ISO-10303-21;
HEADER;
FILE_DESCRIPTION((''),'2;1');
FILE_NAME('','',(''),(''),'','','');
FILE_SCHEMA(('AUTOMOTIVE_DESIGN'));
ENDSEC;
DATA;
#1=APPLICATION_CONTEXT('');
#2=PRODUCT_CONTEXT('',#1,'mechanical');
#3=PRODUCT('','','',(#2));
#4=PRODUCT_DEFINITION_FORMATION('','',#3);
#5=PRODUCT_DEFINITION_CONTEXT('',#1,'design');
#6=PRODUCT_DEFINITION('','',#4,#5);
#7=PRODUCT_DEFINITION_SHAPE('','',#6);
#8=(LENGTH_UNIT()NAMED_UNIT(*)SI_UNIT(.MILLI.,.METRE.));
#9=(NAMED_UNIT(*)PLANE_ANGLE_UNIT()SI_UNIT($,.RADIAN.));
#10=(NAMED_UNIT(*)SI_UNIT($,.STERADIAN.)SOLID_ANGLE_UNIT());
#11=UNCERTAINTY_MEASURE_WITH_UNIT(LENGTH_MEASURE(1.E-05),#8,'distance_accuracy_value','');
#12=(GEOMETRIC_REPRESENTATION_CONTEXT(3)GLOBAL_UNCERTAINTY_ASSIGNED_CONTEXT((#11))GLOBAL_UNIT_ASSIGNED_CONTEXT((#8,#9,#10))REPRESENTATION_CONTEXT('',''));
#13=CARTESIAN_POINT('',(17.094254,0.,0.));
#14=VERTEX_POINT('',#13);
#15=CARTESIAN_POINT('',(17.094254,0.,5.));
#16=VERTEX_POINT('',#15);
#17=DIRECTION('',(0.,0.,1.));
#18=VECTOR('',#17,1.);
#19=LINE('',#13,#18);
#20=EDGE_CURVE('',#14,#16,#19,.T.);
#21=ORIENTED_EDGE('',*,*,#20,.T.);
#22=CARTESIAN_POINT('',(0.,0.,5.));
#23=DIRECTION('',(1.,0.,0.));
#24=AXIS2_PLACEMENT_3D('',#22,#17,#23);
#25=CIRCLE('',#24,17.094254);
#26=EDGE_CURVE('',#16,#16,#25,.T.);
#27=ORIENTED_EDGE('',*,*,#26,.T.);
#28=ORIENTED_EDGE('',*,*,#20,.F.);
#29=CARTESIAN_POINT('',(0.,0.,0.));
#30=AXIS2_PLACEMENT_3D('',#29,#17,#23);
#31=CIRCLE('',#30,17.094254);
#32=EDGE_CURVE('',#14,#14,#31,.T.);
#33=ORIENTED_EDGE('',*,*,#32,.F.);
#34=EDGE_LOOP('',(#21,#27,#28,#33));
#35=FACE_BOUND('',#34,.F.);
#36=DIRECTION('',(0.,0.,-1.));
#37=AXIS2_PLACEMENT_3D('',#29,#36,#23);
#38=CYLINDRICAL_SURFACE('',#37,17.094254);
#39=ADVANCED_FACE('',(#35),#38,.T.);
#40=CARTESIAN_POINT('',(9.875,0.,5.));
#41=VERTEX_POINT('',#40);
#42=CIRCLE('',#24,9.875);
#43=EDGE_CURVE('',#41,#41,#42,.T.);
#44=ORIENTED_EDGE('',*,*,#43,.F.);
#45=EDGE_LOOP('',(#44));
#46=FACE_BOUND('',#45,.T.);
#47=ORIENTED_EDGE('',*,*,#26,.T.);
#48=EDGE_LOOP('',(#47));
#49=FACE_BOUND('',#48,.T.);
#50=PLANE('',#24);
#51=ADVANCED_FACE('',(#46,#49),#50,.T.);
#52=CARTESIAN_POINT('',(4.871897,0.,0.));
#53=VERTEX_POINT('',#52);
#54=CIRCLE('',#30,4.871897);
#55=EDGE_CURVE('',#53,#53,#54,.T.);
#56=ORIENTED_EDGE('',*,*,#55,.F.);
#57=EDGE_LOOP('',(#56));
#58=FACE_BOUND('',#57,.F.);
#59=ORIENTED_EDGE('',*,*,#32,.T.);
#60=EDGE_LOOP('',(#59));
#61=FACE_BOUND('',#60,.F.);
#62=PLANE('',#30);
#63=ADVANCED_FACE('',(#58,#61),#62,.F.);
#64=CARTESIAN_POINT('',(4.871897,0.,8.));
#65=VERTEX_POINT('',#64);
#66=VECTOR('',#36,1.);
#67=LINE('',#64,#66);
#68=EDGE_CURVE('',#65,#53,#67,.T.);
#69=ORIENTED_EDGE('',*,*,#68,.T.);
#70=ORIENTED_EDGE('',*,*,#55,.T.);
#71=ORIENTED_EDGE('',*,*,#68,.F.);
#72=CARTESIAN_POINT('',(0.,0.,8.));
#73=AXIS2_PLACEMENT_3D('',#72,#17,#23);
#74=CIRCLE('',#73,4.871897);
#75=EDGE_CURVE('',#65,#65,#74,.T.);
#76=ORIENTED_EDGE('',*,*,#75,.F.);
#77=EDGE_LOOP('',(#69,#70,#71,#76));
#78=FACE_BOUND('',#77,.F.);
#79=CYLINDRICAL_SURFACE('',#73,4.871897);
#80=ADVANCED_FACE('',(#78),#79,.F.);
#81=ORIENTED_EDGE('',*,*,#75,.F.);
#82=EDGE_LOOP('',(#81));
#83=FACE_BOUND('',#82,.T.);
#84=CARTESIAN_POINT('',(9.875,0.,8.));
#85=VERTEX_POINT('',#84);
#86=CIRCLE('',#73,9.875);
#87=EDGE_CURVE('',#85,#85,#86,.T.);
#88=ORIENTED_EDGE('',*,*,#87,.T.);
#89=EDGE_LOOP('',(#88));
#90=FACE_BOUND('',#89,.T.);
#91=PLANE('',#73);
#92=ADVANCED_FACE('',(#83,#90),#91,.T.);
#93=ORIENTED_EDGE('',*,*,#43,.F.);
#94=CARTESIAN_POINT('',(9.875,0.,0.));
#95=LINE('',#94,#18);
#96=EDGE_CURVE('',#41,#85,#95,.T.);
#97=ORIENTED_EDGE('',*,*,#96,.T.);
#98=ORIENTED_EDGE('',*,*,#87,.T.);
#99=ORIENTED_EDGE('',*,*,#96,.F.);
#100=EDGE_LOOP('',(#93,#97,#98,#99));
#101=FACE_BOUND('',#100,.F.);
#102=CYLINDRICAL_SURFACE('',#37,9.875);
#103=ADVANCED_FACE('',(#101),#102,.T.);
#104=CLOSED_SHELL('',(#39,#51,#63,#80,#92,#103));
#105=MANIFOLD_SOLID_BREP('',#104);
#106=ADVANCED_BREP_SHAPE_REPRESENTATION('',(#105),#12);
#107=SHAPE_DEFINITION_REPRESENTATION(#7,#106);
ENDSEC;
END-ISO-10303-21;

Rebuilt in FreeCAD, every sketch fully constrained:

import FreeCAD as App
import Part
import Sketcher

doc = App.newDocument("Part")
body = doc.addObject("PartDesign::Body", "Body")

sketch1 = body.newObject("Sketcher::SketchObject", "Sketch")
sketch1.AttachmentSupport = (doc.getObject("XY_Plane"), [""])
sketch1.MapMode = "FlatFace"
sketch1.addGeometry(Part.Circle(App.Vector(0, 0, 0), App.Vector(0, 0, 1), 10), False)
sketch1.addConstraint(Sketcher.Constraint("Coincident", 0, 3, -1, 1))
sketch1.addConstraint(Sketcher.Constraint("Diameter", 0, 19.75))
pad1 = body.newObject("PartDesign::Pad", "Pad")
pad1.Profile = sketch1
pad1.Length = 8

sketch2 = body.newObject("Sketcher::SketchObject", "Sketch001")
sketch2.AttachmentSupport = (doc.getObject("XY_Plane"), [""])
sketch2.MapMode = "FlatFace"
sketch2.addGeometry(Part.Circle(App.Vector(0, 0, 0), App.Vector(0, 0, 1), 17), False)
sketch2.addGeometry(Part.Circle(App.Vector(0, 0, 0), App.Vector(0, 0, 1), 10), False)
sketch2.addConstraint(Sketcher.Constraint("Coincident", 0, 3, -1, 1))
sketch2.addConstraint(Sketcher.Constraint("Coincident", 1, 3, -1, 1))
sketch2.addConstraint(Sketcher.Constraint("Diameter", 1, 19.75))
sketch2.addConstraint(Sketcher.Constraint("Diameter", 0, 34.188509))
pad2 = body.newObject("PartDesign::Pad", "Pad001")
pad2.Profile = sketch2
pad2.Length = 5

sketch3 = body.newObject("Sketcher::SketchObject", "Sketch002")
sketch3.AttachmentSupport = (doc.getObject("XY_Plane"), [""])
sketch3.MapMode = "FlatFace"
sketch3.AttachmentOffset = App.Placement(App.Vector(0, 0, 8), App.Rotation())
sketch3.addGeometry(Part.Circle(App.Vector(0, 0, 0), App.Vector(0, 0, 1), 4.9), False)
sketch3.addConstraint(Sketcher.Constraint("Coincident", 0, 3, -1, 1))
sketch3.addConstraint(Sketcher.Constraint("Diameter", 0, 9.743794))
pocket1 = body.newObject("PartDesign::Pocket", "Pocket")
pocket1.Profile = sketch3
pocket1.Length = 25

doc.recompute()
